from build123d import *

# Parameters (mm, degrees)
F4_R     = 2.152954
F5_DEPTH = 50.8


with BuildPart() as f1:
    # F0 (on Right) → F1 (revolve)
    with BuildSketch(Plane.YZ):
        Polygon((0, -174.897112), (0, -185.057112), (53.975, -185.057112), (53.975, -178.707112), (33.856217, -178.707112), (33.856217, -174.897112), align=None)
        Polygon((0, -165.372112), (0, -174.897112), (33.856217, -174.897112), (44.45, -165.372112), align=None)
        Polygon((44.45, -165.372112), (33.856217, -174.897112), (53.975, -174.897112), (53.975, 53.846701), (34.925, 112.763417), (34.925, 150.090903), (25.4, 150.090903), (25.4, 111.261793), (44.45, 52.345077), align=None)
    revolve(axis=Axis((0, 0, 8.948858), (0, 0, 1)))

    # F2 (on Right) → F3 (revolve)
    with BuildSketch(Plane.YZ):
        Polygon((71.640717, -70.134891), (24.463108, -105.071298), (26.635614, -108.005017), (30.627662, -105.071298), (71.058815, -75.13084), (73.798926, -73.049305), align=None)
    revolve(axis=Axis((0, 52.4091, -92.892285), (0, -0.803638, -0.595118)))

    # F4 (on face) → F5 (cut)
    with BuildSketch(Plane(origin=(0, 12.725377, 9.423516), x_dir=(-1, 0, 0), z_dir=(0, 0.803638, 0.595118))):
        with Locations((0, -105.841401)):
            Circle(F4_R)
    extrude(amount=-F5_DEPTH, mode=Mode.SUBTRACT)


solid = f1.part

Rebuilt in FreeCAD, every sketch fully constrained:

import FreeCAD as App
import Part
import Sketcher
Q = App.Units.Quantity


def add_polygon(sketch, points):
    """Adds a closed chain of lines whose ends are joined by coincident constraints."""
    first, n = sketch.GeometryCount, len(points)
    for a, b in zip(points, points[1:] + points[:1]):
        sketch.addGeometry(Part.LineSegment(App.Vector(*a, 0), App.Vector(*b, 0)), False)
    for i in range(n):
        sketch.addConstraint(Sketcher.Constraint("Coincident", first + i, 2, first + (i + 1) % n, 1))

doc = App.newDocument("Part")
body = doc.addObject("PartDesign::Body", "Body")

# Sketch on YZ plane
sketch1 = body.newObject("Sketcher::SketchObject", "Sketch")
sketch1.AttachmentSupport = (doc.getObject("YZ_Plane"), [""])
sketch1.MapMode = "FlatFace"
add_polygon(sketch1, [(0, -185.057112), (53.975, -185.057112), (53.975, -178.707112), (33.856217, -178.707112), (33.856217, -174.897112), (53.975, -174.897112), (53.975, 53.846701), (34.925, 112.763417), (34.925, 150.090903), (25.4, 150.090903), (25.4, 111.261793), (44.45, 52.345077), (44.45, -165.372112), (0, -165.372112)])  # lines 0-13
sketch1.addConstraint(Sketcher.Constraint("Horizontal", 0))
sketch1.addConstraint(Sketcher.Constraint("Vertical", 1))
sketch1.addConstraint(Sketcher.Constraint("Horizontal", 2))
sketch1.addConstraint(Sketcher.Constraint("Vertical", 3))
sketch1.addConstraint(Sketcher.Constraint("Horizontal", 4))
sketch1.addConstraint(Sketcher.Constraint("Vertical", 5))
sketch1.addConstraint(Sketcher.Constraint("Vertical", 7))
sketch1.addConstraint(Sketcher.Constraint("Horizontal", 8))
sketch1.addConstraint(Sketcher.Constraint("Vertical", 9))
sketch1.addConstraint(Sketcher.Constraint("Vertical", 11))
sketch1.addConstraint(Sketcher.Constraint("Horizontal", 12))
sketch1.addConstraint(Sketcher.Constraint("Vertical", 13))
sketch1.addConstraint(Sketcher.Constraint("PointOnObject", 12, 2, -2))
sketch1.addConstraint(Sketcher.Constraint("Parallel", 6, 10))
sketch1.addConstraint(Sketcher.Constraint("Vertical", 1, 2, 4, 2))
sketch1.addConstraint(Sketcher.Constraint("Equal", 6, 10))
sketch1.addConstraint(Sketcher.Constraint("DistanceX", -1, 1, 8, 2, Q("1 in")))
sketch1.addConstraint(Sketcher.Constraint("DistanceX", 12, 2, 12, 1, Q("1.75 in")))
sketch1.addConstraint(Sketcher.Constraint("DistanceY", 1, 1, 1, 2, Q("0.25 in")))
sketch1.addConstraint(Sketcher.Constraint("DistanceY", 3, 1, 3, 2, Q("0.15 in")))
sketch1.addConstraint(Sketcher.Constraint("DistanceX", 0, 1, 0, 2, Q("2.125 in")))
sketch1.addConstraint(Sketcher.Constraint("DistanceY", 13, 2, 13, 1, Q("0.775 in")))
sketch1.addConstraint(Sketcher.Constraint("DistanceY", 9, 2, 9, 1, Q("38.82911 mm")))
sketch1.addConstraint(Sketcher.Constraint("DistanceY", 11, 2, 11, 1, Q("217.717189 mm")))
sketch1.addConstraint(Sketcher.Constraint("DistanceY", -1, 1, 5, 2, Q("53.846701 mm")))
sketch1.addConstraint(Sketcher.Constraint("DistanceY", 5, 2, 7, 2, Q("96.244202 mm")))
sketch1.addConstraint(Sketcher.Constraint("DistanceX", 2, 2, 2, 1, Q("20.118783 mm")))
sketch1.addConstraint(Sketcher.Constraint("DistanceY", 5, 1, 5, 2, Q("228.743813 mm")))
revolution = body.newObject("PartDesign::Revolution", "Revolution")
revolution.Profile = sketch1
revolution.ReferenceAxis = (sketch1, ["V_Axis"])
revolution.Angle = 360

# Sketch on YZ plane
sketch2 = body.newObject("Sketcher::SketchObject", "Sketch001")
sketch2.AttachmentSupport = (doc.getObject("YZ_Plane"), [""])
sketch2.MapMode = "FlatFace"
add_polygon(sketch2, [(71.640717, -70.134891), (24.463108, -105.071298), (26.635614, -108.005017), (30.627662, -105.071298), (71.058815, -75.13084), (73.798926, -73.049305)])  # lines 0-5
sketch2.addGeometry(Part.LineSegment(App.Vector(75.713484, -75.634691, 0), App.Vector(28.535886, -110.571115, 0)), True)  # axis
sketch2.addConstraint(Sketcher.Constraint("Perpendicular", 0, 1))
sketch2.addConstraint(Sketcher.Constraint("Perpendicular", 1, 3))
sketch2.addConstraint(Sketcher.Constraint("Perpendicular", 3, 5))
sketch2.addConstraint(Sketcher.Constraint("Perpendicular", 5, 6))
sketch2.addConstraint(Sketcher.Constraint("Horizontal", 0, 2, 2, 2))
sketch2.addConstraint(Sketcher.Constraint("Equal", 0, 6))
sketch2.addConstraint(Sketcher.Constraint("DistanceY", 0, 2, -1, 1, Q("105.071298 mm")))
sketch2.addConstraint(Sketcher.Constraint("DistanceX", 1, 2, 3, 2, Q("44.423201 mm")))
sketch2.addConstraint(Sketcher.Constraint("DistanceX", 3, 2, 5, 2, Q("0.581902 mm")))
sketch2.addConstraint(Sketcher.Constraint("DistanceY", 6, 1, 5, 2, Q("5.4998 mm")))
sketch2.addConstraint(Sketcher.Constraint("Distance", 0, Q("58.70502 mm")))
sketch2.addConstraint(Sketcher.Constraint("Distance", 3, Q("50.31013 mm")))
sketch2.addConstraint(Sketcher.Constraint("DistanceY", 3, 2, -1, 1, Q("75.13084 mm")))
sketch2.addConstraint(Sketcher.Constraint("DistanceX", 3, 2, 4, 2, Q("2.740111 mm")))
sketch2.addConstraint(Sketcher.Constraint("DistanceX", 3, 2, 6, 1, Q("4.654669 mm")))
sketch2.addConstraint(Sketcher.Constraint("DistanceX", -1, 1, 0, 2, Q("24.463108 mm")))
revolution2 = body.newObject("PartDesign::Revolution", "Revolution001")
revolution2.Profile = sketch2
revolution2.ReferenceAxis = (sketch2, ["Axis0"])
revolution2.Angle = 360

# Sketch on an angled plane
sketch3 = body.newObject("Sketcher::SketchObject", "Sketch002")
sketch3.Placement = App.Placement(App.Vector(0, 12.725377, 9.423516), App.Rotation(App.Vector(-1, 0, 0), App.Vector(0, -0.595118158, 0.803638213), App.Vector(0, 0.803638213, 0.595118158), "ZXY"))
sketch3.addGeometry(Part.Circle(App.Vector(0, -105.841401, 0), App.Vector(0, 0, 1), 2.152954), False)
sketch3.addConstraint(Sketcher.Constraint("PointOnObject", 0, 3, -2))
sketch3.addConstraint(Sketcher.Constraint("Diameter", 0, Q("4.305908 mm")))
sketch3.addConstraint(Sketcher.Constraint("DistanceY", 0, 3, -1, 1, Q("105.841401 mm")))
pocket1 = body.newObject("PartDesign::Pocket", "Pocket")
pocket1.Profile = sketch3
pocket1.Length = Q("2 in")

doc.recompute()
